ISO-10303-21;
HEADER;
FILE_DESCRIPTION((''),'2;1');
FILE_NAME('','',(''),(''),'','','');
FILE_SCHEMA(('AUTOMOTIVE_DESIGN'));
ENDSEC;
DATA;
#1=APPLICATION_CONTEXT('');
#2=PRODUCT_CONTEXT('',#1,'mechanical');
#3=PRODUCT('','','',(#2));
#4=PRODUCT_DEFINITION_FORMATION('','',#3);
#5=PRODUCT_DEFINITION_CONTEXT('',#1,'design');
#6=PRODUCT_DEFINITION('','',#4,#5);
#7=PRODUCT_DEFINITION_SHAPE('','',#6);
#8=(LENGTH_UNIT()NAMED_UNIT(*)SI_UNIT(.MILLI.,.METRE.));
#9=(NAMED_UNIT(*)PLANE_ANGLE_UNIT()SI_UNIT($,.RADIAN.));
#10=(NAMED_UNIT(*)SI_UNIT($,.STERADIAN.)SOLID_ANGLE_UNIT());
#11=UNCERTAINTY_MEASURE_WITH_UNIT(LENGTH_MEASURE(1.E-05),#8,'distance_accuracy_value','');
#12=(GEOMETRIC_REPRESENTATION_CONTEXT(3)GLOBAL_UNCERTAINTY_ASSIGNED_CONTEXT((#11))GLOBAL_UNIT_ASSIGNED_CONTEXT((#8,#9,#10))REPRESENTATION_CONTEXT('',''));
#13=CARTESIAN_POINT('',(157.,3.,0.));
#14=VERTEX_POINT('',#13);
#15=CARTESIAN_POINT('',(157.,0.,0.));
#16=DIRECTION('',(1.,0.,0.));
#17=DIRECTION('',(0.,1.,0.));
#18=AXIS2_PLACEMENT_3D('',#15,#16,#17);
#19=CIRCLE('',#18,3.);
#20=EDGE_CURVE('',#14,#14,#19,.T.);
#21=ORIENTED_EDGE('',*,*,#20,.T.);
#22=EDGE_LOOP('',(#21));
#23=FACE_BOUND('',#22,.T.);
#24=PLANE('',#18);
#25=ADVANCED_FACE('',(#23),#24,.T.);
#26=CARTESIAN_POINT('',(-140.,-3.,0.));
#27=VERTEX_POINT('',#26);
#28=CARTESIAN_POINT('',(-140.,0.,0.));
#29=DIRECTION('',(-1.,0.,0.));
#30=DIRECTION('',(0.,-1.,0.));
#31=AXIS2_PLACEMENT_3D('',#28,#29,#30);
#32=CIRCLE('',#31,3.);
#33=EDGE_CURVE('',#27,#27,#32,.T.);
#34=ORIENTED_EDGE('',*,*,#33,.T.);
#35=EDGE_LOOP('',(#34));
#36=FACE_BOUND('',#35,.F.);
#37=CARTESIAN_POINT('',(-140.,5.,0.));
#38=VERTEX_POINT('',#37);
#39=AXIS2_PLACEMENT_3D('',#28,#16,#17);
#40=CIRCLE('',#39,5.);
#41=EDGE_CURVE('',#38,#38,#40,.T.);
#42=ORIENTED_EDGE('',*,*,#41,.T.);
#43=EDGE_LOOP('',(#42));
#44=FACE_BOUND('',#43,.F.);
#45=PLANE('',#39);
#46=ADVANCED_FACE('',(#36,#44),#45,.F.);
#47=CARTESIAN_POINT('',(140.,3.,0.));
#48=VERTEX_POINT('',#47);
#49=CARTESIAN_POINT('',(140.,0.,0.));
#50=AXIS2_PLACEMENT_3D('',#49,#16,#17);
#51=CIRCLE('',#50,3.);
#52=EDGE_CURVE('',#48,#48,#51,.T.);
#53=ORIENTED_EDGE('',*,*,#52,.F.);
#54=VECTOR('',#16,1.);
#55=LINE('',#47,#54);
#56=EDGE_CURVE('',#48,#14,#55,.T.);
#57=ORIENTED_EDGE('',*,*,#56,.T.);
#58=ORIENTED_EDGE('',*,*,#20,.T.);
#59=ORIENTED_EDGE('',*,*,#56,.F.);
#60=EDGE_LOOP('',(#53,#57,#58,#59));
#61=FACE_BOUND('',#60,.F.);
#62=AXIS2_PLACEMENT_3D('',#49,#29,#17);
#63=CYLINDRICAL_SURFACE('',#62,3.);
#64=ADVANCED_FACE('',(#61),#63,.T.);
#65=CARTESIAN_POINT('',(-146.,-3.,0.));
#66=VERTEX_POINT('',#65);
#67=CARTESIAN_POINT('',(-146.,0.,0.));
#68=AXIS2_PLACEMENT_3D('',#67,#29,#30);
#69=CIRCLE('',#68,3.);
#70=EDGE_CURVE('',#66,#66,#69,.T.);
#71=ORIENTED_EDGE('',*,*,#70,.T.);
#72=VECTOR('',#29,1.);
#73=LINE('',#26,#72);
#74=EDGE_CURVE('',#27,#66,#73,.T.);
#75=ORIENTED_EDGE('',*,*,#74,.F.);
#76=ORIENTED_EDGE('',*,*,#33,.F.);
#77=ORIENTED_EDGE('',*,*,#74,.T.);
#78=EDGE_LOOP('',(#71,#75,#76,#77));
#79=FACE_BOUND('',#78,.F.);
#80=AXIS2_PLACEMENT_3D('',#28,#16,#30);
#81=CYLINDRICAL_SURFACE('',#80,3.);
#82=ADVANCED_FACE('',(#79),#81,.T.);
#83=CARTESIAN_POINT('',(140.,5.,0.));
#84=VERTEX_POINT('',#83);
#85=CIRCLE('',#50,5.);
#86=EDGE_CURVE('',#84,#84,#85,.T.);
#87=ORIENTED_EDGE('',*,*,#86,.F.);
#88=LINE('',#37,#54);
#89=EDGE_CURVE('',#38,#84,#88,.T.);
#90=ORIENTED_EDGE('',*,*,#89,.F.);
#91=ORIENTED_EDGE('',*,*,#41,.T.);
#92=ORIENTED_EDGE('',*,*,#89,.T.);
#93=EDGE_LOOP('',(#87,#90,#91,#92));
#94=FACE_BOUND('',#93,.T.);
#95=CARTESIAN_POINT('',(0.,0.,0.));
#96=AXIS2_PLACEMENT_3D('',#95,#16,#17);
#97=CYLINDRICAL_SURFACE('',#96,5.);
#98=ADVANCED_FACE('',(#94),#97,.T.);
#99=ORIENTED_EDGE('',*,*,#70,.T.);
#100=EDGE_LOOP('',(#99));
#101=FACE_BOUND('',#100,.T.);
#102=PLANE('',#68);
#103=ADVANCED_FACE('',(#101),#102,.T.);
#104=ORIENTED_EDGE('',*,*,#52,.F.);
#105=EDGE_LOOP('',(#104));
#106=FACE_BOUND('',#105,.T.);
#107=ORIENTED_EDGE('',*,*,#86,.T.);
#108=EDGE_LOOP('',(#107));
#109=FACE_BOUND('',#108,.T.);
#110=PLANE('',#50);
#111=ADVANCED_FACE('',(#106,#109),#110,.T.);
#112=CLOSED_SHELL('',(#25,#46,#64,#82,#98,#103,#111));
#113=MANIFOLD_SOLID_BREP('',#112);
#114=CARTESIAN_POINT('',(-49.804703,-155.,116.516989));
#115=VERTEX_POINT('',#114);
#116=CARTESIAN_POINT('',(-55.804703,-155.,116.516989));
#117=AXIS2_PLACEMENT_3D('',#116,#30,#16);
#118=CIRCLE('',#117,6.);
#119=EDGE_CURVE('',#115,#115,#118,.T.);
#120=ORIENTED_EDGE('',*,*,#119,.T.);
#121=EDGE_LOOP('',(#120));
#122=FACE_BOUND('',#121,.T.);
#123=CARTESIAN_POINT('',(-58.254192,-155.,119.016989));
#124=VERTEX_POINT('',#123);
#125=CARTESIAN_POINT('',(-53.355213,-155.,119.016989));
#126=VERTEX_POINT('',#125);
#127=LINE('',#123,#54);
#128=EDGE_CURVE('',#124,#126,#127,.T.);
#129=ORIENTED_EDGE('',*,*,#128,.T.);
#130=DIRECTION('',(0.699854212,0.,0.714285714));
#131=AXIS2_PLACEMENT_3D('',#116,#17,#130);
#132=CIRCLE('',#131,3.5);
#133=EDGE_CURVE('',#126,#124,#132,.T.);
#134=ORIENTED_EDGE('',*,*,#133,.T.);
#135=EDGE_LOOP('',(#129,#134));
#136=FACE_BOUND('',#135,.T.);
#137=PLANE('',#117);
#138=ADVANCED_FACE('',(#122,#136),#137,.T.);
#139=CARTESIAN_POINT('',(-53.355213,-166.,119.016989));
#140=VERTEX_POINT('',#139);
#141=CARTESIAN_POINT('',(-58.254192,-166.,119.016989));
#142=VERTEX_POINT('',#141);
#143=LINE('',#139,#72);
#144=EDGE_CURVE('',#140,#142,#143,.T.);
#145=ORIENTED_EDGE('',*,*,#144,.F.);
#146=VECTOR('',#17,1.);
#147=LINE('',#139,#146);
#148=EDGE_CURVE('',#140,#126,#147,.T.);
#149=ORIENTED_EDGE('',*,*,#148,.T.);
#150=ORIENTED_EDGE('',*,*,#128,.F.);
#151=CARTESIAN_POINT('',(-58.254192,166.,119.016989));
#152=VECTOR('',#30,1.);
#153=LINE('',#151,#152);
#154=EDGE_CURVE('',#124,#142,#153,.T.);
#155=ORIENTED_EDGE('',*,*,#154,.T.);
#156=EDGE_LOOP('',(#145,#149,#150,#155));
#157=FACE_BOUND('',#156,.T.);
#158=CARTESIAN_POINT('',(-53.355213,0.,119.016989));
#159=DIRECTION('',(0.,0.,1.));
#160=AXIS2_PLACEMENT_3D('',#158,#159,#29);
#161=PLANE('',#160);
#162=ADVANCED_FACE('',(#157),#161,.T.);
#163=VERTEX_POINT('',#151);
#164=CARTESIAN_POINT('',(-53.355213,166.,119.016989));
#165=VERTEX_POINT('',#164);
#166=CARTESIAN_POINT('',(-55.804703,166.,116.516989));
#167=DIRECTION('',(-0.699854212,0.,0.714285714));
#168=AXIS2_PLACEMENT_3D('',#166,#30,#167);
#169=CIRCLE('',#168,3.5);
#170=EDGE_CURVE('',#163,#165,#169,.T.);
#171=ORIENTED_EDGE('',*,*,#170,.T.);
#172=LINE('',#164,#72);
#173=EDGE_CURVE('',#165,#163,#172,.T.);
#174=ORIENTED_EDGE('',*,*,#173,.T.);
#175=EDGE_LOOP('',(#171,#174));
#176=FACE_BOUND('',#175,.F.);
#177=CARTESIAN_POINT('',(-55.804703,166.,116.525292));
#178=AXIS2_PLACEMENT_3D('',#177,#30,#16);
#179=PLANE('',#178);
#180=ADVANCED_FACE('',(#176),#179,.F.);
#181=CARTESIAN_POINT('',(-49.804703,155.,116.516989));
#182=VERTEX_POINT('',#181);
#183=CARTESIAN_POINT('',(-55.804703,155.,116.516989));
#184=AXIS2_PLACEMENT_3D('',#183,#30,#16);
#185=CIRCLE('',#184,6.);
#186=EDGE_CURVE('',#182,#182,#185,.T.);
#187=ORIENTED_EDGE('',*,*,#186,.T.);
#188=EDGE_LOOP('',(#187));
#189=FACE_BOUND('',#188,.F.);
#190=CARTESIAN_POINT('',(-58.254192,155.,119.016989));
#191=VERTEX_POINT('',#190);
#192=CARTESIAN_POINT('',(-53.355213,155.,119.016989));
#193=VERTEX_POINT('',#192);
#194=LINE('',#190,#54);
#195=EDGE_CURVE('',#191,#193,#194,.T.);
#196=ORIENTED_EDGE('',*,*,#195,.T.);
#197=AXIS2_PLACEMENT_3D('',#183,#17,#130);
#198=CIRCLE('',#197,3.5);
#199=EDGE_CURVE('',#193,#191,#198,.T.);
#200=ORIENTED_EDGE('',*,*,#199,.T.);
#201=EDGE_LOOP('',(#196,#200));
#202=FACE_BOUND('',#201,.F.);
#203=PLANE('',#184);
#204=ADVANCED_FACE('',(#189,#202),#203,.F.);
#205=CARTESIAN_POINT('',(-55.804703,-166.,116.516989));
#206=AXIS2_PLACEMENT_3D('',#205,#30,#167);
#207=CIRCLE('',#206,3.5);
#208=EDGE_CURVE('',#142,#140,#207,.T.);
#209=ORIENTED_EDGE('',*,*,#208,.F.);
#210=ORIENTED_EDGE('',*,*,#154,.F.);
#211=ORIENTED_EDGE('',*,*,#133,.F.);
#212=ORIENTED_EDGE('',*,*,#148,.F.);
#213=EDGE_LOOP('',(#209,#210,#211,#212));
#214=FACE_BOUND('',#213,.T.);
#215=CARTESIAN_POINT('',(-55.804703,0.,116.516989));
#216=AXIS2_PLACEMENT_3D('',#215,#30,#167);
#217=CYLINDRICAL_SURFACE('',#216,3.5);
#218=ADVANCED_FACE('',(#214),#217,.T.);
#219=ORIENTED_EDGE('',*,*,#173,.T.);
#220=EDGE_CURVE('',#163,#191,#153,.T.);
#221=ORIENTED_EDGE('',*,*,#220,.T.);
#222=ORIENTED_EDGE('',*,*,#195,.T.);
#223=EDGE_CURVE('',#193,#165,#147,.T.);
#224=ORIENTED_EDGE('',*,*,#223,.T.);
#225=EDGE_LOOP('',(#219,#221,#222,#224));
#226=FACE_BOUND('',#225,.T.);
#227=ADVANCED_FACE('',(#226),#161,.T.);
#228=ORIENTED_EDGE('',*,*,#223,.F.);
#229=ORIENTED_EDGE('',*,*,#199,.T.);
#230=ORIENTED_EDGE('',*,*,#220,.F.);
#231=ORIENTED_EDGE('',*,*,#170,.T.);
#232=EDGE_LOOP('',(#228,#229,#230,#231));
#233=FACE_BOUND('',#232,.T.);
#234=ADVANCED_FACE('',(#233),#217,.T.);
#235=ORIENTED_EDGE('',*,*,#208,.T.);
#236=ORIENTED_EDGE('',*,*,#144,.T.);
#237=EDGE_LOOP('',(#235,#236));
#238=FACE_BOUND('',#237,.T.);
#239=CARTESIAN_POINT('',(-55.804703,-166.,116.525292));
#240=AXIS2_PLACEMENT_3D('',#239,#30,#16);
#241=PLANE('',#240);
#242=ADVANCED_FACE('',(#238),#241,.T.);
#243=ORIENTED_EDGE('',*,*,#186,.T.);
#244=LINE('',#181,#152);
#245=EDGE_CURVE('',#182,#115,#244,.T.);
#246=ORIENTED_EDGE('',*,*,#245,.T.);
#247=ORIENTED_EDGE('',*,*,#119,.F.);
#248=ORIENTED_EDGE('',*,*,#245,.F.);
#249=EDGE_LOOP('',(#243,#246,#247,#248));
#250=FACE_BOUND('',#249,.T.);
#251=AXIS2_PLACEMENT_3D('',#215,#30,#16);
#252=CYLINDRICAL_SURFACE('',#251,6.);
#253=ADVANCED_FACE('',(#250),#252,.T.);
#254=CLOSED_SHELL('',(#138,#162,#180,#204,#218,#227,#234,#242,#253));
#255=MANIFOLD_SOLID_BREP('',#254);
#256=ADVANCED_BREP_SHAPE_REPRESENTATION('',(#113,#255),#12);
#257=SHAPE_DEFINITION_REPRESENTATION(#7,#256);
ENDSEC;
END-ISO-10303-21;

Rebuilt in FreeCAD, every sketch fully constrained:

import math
import FreeCAD as App
import Part
import Sketcher

doc = App.newDocument("Part")
body = doc.addObject("PartDesign::Body", "Body")

# Sketch on YZ plane
sketch1 = body.newObject("Sketcher::SketchObject", "Sketch")
sketch1.AttachmentSupport = (doc.getObject("YZ_Plane"), [""])
sketch1.MapMode = "FlatFace"
sketch1.addGeometry(Part.Circle(App.Vector(0, 0, 0), App.Vector(0, 0, 1), 5), False)
sketch1.addConstraint([
    Sketcher.Constraint("Coincident", 0, 3, -1, 1),
    Sketcher.Constraint("Diameter", 0, 10.0),
])
pad1 = body.newObject("PartDesign::Pad", "Pad")
pad1.Profile = sketch1
pad1.Length = 280
pad1.Midplane = True

# Sketch on YZ plane
sketch2 = body.newObject("Sketcher::SketchObject", "Sketch001")
sketch2.AttachmentSupport = (doc.getObject("YZ_Plane"), [""])
sketch2.MapMode = "FlatFace"
sketch2.AttachmentOffset = App.Placement(App.Vector(0, 0, 140), App.Rotation())
sketch2.addGeometry(Part.Circle(App.Vector(0, 0, 0), App.Vector(0, 0, 1), 3), False)
sketch2.addConstraint([
    Sketcher.Constraint("Coincident", 0, 3, -1, 1),
    Sketcher.Constraint("Diameter", 0, 6.0),
])
pad2 = body.newObject("PartDesign::Pad", "Pad001")
pad2.Profile = sketch2
pad2.Length = 17

# Sketch on YZ plane
sketch3 = body.newObject("Sketcher::SketchObject", "Sketch002")
sketch3.AttachmentSupport = (doc.getObject("YZ_Plane"), [""])
sketch3.MapMode = "FlatFace"
sketch3.AttachmentOffset = App.Placement(App.Vector(0, 0, -140), App.Rotation())
sketch3.addGeometry(Part.Circle(App.Vector(0, 0, 0), App.Vector(0, 0, 1), 3), False)
sketch3.addConstraint([
    Sketcher.Constraint("Coincident", 0, 3, -1, 1),
    Sketcher.Constraint("Diameter", 0, 6.0),
])
pad3 = body.newObject("PartDesign::Pad", "Pad002")
pad3.Profile = sketch3
pad3.Length = 6
pad3.Reversed = True
body2 = doc.addObject("PartDesign::Body", "Body001")

# Sketch on XZ plane
sketch4 = body2.newObject("Sketcher::SketchObject", "Sketch003")
sketch4.AttachmentSupport = (doc.getObject("XZ_Plane001"), [""])
sketch4.MapMode = "FlatFace"
sketch4.addGeometry([
    Part.LineSegment(App.Vector(-53.4, 119, 0), App.Vector(-58.3, 119, 0)),
    Part.ArcOfCircle(Part.Circle(App.Vector(-55.8, 116.5, 0), App.Vector(0, 0, 1), 3.5), math.radians(134), math.radians(406)),
], False)
sketch4.addConstraint([
    Sketcher.Constraint("Coincident", 0, 1, 1, 2),
    Sketcher.Constraint("Coincident", 1, 1, 0, 2),
    Sketcher.Constraint("Horizontal", 0),
    Sketcher.Constraint("Radius", 1, 3.5),
    Sketcher.Constraint("DistanceY", 1, 3, 0, 1, 2.5),
    Sketcher.Constraint("DistanceY", -1, 1, 1, 3, 116.516989),
    Sketcher.Constraint("DistanceX", 1, 3, -1, 1, 55.804703),
])
pad4 = body2.newObject("PartDesign::Pad", "Pad003")
pad4.Profile = sketch4
pad4.Length = 332
pad4.Midplane = True

# Sketch on XZ plane
sketch5 = body2.newObject("Sketcher::SketchObject", "Sketch004")
sketch5.AttachmentSupport = (doc.getObject("XZ_Plane001"), [""])
sketch5.MapMode = "FlatFace"
sketch5.addGeometry([
    Part.Circle(App.Vector(-55.8, 116.5, 0), App.Vector(0, 0, 1), 6),
    Part.LineSegment(App.Vector(-58.3, 119, 0), App.Vector(-53.4, 119, 0)),
    Part.ArcOfCircle(Part.Circle(App.Vector(-55.8, 116.5, 0), App.Vector(0, 0, 1), 3.5), math.radians(134), math.radians(406)),
], False)
sketch5.addConstraint([
    Sketcher.Constraint("Coincident", 1, 1, 2, 1),
    Sketcher.Constraint("Coincident", 2, 2, 1, 2),
    Sketcher.Constraint("Horizontal", 1),
    Sketcher.Constraint("Coincident", 2, 3, 0, 3),
    Sketcher.Constraint("Diameter", 0, 12.0),
    Sketcher.Constraint("Radius", 2, 3.5),
    Sketcher.Constraint("DistanceY", 0, 3, 1, 1, 2.5),
    Sketcher.Constraint("DistanceY", -1, 1, 0, 3, 116.516989),
    Sketcher.Constraint("DistanceX", 0, 3, -1, 1, 55.804703),
])
pad5 = body2.newObject("PartDesign::Pad", "Pad004")
pad5.Profile = sketch5
pad5.Length = 310
pad5.Midplane = True

doc.recompute()
